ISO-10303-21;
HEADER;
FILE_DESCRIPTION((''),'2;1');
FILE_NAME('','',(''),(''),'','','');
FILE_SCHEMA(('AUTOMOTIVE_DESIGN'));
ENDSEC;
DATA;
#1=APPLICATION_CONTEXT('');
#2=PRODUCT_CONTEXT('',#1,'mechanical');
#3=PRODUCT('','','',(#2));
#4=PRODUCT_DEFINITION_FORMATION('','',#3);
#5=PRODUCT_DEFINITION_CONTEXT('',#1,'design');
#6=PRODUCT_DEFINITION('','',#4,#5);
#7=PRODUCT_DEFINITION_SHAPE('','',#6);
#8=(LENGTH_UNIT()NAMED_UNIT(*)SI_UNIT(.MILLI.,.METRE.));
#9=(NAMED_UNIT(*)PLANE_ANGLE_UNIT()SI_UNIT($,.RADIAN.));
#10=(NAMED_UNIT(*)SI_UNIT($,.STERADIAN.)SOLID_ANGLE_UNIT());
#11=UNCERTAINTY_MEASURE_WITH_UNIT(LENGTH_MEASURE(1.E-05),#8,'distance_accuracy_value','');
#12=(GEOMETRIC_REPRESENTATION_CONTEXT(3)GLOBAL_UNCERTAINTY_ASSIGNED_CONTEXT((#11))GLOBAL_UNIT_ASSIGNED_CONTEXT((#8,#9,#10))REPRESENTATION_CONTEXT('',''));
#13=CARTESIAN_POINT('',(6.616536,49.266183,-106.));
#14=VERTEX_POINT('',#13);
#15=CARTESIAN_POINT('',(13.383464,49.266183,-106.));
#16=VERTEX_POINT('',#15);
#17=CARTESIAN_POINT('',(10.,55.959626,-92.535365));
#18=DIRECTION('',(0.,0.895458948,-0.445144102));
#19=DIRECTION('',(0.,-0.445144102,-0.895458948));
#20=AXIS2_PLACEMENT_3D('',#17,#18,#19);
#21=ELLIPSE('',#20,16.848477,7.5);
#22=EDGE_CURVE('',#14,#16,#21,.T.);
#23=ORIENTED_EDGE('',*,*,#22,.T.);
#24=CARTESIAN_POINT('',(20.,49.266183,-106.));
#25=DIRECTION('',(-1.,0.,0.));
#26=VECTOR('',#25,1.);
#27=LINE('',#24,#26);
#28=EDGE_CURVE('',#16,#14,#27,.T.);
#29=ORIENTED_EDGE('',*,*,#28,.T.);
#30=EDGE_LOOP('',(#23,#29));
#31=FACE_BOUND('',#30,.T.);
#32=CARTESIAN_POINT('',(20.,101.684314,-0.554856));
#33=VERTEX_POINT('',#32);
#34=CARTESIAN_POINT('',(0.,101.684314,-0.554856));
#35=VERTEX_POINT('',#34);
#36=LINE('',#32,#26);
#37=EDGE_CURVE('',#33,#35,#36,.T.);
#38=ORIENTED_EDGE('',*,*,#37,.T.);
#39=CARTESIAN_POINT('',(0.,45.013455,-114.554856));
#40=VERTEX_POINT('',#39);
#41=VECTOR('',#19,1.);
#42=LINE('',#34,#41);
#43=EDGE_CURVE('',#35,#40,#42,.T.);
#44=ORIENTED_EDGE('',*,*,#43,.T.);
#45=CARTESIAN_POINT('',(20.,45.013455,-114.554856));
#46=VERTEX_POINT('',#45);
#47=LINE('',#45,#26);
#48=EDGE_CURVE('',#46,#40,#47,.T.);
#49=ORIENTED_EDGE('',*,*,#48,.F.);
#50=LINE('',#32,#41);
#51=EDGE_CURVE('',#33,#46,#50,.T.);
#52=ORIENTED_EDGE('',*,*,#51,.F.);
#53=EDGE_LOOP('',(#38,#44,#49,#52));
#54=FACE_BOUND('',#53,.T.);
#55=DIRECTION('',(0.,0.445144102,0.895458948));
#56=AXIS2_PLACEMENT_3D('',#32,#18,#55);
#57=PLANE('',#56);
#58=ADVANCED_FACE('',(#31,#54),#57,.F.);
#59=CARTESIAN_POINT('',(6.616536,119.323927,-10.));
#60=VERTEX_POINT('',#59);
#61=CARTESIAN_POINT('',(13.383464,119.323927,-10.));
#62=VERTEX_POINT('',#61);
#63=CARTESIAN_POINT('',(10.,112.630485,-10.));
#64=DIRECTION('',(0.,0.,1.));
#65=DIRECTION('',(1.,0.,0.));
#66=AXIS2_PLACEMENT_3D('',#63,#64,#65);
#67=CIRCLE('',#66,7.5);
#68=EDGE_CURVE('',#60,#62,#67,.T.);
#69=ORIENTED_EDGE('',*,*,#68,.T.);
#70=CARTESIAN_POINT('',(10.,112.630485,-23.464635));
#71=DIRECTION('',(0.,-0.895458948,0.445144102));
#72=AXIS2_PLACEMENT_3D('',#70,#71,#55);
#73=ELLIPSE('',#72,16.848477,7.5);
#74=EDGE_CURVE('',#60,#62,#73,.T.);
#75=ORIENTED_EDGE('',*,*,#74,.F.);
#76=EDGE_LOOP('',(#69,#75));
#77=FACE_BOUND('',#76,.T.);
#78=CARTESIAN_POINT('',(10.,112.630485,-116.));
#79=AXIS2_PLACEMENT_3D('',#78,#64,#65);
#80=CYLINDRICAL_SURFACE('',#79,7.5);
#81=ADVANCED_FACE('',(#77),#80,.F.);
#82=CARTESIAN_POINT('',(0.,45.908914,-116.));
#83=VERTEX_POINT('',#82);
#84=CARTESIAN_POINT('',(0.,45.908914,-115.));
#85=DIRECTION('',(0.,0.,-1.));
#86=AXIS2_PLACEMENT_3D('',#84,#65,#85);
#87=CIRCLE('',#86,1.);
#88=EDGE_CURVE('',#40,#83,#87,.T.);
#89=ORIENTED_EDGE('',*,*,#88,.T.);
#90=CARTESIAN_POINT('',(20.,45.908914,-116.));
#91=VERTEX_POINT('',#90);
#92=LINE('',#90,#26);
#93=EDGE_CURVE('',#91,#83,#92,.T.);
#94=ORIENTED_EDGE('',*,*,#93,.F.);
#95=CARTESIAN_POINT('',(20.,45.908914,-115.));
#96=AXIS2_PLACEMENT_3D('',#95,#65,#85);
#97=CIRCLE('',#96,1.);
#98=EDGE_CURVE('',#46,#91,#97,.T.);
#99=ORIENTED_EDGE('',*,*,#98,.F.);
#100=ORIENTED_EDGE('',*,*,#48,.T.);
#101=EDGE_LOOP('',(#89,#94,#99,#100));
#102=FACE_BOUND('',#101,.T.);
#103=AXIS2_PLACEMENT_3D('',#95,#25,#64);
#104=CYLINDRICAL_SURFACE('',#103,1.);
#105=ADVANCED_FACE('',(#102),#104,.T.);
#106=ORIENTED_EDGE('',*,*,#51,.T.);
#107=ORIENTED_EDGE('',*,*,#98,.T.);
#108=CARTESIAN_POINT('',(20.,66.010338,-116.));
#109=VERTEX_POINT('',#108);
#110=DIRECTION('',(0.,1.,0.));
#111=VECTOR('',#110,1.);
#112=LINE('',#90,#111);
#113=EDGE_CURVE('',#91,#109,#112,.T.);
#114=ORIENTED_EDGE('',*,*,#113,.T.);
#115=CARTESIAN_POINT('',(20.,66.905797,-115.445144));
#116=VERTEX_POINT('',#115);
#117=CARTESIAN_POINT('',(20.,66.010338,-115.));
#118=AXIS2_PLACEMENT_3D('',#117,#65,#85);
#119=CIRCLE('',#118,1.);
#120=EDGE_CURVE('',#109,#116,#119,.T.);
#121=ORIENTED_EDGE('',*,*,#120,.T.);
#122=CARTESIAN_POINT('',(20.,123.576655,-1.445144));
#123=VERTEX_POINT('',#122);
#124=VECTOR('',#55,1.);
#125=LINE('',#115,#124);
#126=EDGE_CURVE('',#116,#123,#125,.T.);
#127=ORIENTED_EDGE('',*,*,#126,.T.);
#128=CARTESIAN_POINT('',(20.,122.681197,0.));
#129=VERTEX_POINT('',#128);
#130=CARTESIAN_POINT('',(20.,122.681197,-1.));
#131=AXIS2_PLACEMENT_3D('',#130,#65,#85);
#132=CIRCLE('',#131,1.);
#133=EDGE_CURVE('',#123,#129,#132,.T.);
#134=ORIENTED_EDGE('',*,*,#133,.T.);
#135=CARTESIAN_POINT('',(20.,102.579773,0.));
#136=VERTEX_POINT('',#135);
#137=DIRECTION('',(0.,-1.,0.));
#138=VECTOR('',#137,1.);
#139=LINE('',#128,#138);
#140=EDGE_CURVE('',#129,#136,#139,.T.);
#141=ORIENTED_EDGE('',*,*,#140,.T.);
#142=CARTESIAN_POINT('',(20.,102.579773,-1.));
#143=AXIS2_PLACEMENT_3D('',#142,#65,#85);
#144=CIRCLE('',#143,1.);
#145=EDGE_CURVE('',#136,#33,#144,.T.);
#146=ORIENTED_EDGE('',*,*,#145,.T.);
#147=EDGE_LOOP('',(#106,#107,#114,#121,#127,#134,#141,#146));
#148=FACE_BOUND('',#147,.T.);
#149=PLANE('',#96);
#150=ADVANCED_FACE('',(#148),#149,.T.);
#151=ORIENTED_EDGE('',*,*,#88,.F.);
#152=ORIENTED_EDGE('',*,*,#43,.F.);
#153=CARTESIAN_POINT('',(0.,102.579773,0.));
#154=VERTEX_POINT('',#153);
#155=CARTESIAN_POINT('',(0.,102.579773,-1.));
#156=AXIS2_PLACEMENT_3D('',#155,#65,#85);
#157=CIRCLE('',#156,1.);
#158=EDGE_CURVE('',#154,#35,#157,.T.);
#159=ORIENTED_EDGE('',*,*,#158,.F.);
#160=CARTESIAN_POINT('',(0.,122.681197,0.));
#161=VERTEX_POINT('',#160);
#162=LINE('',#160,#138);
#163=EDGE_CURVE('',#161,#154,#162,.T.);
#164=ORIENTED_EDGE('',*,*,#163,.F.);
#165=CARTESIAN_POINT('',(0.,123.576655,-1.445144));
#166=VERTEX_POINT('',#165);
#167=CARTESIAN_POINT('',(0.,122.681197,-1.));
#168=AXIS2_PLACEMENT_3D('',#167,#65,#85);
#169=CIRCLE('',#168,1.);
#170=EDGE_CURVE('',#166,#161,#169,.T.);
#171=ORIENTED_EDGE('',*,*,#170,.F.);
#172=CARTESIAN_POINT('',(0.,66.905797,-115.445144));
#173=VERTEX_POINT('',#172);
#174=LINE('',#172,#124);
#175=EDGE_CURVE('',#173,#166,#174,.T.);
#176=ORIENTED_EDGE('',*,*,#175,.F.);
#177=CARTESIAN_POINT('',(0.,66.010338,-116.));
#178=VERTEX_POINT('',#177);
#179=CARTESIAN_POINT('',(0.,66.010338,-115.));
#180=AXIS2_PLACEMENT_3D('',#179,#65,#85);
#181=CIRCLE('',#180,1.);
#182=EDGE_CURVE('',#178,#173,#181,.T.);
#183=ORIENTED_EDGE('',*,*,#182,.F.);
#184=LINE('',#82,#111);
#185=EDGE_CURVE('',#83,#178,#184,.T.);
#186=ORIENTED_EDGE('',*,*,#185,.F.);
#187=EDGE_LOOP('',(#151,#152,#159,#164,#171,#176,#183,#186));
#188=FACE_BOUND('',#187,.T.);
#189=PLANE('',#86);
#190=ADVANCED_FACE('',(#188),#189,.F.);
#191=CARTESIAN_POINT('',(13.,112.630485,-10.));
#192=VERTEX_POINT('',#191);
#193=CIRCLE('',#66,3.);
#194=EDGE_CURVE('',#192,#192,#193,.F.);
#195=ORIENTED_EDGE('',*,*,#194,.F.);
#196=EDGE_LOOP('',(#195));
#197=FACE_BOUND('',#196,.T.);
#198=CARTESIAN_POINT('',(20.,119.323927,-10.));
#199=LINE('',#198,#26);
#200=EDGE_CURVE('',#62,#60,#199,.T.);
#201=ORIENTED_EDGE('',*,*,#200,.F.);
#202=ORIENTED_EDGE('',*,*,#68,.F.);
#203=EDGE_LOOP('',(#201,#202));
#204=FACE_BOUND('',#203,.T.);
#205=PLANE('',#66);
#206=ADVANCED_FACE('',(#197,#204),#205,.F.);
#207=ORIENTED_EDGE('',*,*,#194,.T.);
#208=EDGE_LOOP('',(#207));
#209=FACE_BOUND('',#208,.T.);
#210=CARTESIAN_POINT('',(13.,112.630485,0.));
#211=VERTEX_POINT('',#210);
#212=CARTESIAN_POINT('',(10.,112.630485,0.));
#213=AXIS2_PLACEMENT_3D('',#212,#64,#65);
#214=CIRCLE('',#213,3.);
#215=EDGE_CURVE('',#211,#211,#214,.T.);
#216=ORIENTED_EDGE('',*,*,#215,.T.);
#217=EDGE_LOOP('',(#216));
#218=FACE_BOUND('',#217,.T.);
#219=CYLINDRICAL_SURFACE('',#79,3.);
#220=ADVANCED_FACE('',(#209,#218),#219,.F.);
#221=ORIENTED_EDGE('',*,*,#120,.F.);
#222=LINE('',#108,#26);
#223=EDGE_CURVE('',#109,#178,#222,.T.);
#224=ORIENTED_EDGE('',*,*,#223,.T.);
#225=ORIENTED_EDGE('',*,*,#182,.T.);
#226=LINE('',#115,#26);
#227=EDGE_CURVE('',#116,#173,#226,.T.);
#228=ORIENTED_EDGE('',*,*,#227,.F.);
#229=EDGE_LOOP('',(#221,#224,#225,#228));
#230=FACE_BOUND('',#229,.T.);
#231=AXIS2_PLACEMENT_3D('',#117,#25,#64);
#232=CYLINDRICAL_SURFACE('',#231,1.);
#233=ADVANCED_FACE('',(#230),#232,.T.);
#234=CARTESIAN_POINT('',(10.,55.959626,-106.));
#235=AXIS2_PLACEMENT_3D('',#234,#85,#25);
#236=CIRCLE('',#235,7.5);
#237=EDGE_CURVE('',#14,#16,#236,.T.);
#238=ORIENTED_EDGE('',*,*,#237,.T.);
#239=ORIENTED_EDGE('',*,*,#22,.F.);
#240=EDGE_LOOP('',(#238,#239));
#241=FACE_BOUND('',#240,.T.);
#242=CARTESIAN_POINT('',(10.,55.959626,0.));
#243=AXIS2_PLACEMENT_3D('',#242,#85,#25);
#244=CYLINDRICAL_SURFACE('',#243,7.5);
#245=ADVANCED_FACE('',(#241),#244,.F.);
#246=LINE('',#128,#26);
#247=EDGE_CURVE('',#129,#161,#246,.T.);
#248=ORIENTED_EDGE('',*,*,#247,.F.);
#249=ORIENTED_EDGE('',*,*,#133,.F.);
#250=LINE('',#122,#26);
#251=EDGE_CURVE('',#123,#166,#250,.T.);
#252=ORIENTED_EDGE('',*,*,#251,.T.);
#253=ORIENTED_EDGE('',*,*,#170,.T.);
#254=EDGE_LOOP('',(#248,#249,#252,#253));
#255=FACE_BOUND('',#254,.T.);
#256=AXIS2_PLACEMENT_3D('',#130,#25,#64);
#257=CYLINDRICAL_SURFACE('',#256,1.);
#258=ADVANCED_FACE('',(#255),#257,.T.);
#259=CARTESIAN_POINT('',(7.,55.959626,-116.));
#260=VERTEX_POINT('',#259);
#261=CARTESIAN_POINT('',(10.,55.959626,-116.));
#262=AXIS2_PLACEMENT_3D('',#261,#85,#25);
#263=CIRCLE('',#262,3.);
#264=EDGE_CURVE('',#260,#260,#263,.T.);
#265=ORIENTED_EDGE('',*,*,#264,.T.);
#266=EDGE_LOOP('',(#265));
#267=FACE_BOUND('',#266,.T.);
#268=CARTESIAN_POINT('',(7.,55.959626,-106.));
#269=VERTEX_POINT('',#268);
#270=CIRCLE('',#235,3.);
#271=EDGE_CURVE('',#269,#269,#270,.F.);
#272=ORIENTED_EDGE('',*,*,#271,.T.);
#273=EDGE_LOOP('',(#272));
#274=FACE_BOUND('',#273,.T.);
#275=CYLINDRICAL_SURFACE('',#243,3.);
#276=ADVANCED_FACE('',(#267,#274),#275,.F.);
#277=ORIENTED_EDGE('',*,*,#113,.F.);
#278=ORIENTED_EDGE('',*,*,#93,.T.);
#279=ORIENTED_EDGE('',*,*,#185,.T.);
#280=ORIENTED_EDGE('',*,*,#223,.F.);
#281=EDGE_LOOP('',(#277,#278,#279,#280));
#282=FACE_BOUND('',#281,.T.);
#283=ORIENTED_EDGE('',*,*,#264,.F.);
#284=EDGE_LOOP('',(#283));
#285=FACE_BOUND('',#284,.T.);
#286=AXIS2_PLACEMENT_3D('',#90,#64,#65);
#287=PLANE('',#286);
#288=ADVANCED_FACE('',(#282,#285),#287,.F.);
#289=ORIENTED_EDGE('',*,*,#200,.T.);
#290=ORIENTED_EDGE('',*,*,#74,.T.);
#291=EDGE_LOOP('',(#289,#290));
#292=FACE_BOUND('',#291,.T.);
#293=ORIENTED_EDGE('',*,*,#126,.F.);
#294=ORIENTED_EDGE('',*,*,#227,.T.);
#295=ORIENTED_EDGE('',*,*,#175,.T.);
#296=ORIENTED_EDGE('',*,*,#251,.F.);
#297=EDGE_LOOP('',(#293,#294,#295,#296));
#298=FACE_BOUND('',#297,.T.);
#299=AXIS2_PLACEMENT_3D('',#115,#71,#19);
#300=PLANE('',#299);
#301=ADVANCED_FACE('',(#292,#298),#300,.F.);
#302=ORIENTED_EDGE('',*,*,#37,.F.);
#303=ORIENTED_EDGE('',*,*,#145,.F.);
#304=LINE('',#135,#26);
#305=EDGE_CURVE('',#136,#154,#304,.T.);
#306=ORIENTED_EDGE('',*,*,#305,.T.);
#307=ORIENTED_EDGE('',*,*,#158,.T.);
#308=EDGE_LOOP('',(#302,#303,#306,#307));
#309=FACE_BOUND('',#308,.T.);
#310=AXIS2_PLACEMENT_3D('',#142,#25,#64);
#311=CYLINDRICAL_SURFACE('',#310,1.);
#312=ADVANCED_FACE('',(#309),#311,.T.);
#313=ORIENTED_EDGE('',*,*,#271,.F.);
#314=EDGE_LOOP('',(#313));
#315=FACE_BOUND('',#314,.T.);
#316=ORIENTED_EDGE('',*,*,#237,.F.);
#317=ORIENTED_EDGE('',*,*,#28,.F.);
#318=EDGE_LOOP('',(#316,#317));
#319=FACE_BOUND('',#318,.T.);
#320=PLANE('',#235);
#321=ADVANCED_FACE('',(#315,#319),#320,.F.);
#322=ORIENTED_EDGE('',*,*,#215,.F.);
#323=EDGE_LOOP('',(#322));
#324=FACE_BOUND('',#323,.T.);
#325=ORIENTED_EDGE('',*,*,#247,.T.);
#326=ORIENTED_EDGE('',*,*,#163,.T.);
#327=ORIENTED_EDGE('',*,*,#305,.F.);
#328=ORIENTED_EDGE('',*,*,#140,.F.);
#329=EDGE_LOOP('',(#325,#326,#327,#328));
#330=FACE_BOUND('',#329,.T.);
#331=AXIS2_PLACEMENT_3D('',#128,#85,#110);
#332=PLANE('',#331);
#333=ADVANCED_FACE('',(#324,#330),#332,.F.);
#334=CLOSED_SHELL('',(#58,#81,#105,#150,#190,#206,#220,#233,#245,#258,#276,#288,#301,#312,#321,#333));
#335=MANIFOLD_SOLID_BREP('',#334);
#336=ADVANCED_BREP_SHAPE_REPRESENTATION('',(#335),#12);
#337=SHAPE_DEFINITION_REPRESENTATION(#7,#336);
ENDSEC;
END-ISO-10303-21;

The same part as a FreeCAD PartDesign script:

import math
import FreeCAD as App
import Part
import Sketcher

V = App.Vector
Q = App.Units.Quantity

doc = App.newDocument("Part")
params = doc.addObject("Spreadsheet::Sheet", "Params")
for row, (alias, value) in enumerate([
    ("sketch1_radius", "1 mm"),
    ("pad1_length", "20 mm"),
    ("sketch2_diameter", "6 mm"),
    ("sketch3_diameter", "15 mm"),
    ("sketch4_diameter", "6 mm"),
    ("sketch5_diameter", "15 mm"),
], start=1):
    params.set(f"A{row}", alias)
    params.set(f"B{row}", "=" + value)
    params.setAlias(f"B{row}", alias)

body = doc.addObject("PartDesign::Body", "Body")

# Sketch on YZ plane
sketch1 = body.newObject("Sketcher::SketchObject", "Sketch")
sketch1.AttachmentSupport = (doc.getObject("YZ_Plane"), [""])
sketch1.MapMode = "FlatFace"
sketch1.addGeometry(Part.LineSegment(V(101.684314, -0.554856, 0), V(45.013455, -114.554856, 0)), False)
sketch1.addGeometry(Part.ArcOfCircle(Part.Circle(V(45.908914, -115, 0), V(0, 0, 1), 1), math.radians(153.567441), math.radians(270)), False)
sketch1.addGeometry(Part.LineSegment(V(45.908914, -116, 0), V(66.010338, -116, 0)), False)
sketch1.addGeometry(Part.ArcOfCircle(Part.Circle(V(66.010338, -115, 0), V(0, 0, 1), 1), math.radians(-90), math.radians(-26.432559)), False)
sketch1.addGeometry(Part.LineSegment(V(66.905797, -115.445144, 0), V(123.576655, -1.445144, 0)), False)
sketch1.addGeometry(Part.ArcOfCircle(Part.Circle(V(122.681197, -1, 0), V(0, 0, 1), 1), math.radians(-26.432559), math.radians(90)), False)
sketch1.addGeometry(Part.LineSegment(V(122.681197, 0, 0), V(102.579773, 0, 0)), False)
sketch1.addGeometry(Part.ArcOfCircle(Part.Circle(V(102.579773, -1, 0), V(0, 0, 1), 1), math.radians(90), math.radians(153.567441)), False)
sketch1.addConstraint(Sketcher.Constraint("Tangent", 0, 2, 1, 1))
sketch1.addConstraint(Sketcher.Constraint("Tangent", 1, 2, 2, 1))
sketch1.addConstraint(Sketcher.Constraint("Tangent", 2, 2, 3, 1))
sketch1.addConstraint(Sketcher.Constraint("Tangent", 3, 2, 4, 1))
sketch1.addConstraint(Sketcher.Constraint("Tangent", 4, 2, 5, 1))
sketch1.addConstraint(Sketcher.Constraint("Tangent", 5, 2, 6, 1))
sketch1.addConstraint(Sketcher.Constraint("Tangent", 6, 2, 7, 1))
sketch1.addConstraint(Sketcher.Constraint("Tangent", 7, 2, 0, 1))
sketch1.addConstraint(Sketcher.Constraint("Horizontal", 2))
sketch1.addConstraint(Sketcher.Constraint("Horizontal", 6))
sketch1.addConstraint(Sketcher.Constraint("Equal", 1, 3))
sketch1.addConstraint(Sketcher.Constraint("Equal", 3, 5))
sketch1.addConstraint(Sketcher.Constraint("Equal", 5, 7))
sketch1.addConstraint(Sketcher.Constraint("PointOnObject", 5, 2, -1))
sketch1.addConstraint(Sketcher.Constraint("Parallel", 0, 4))
sketch1.addConstraint(Sketcher.Constraint("Radius", 1, Q("1 mm")))
sketch1.addConstraint(Sketcher.Constraint("DistanceY", 1, 3, -1, 1, Q("115 mm")))
sketch1.addConstraint(Sketcher.Constraint("DistanceX", 3, 2, 5, 2, Q("55.7754 mm")))
sketch1.addConstraint(Sketcher.Constraint("DistanceX", 2, 1, 2, 2, Q("20.101424 mm")))
sketch1.addConstraint(Sketcher.Constraint("DistanceX", -1, 1, 1, 3, Q("45.908914 mm")))
sketch1.setExpression("Constraints[15]", "Params.sketch1_radius")
pad1 = body.newObject("PartDesign::Pad", "Pad")
pad1.Profile = sketch1
pad1.setExpression("Length", "Params.pad1_length")

# Sketch on XY plane
sketch2 = body.newObject("Sketcher::SketchObject", "Sketch001")
sketch2.AttachmentSupport = (doc.getObject("XY_Plane"), [""])
sketch2.MapMode = "FlatFace"
sketch2.addGeometry(Part.Circle(V(10, 112.630485, 0), V(0, 0, 1), 3), False)
sketch2.addConstraint(Sketcher.Constraint("Diameter", 0, Q("6 mm")))
sketch2.addConstraint(Sketcher.Constraint("DistanceX", -1, 1, 0, 3, Q("10 mm")))
sketch2.addConstraint(Sketcher.Constraint("DistanceY", -1, 1, 0, 3, Q("112.630485 mm")))
sketch2.setExpression("Constraints[0]", "Params.sketch2_diameter")
pocket1 = body.newObject("PartDesign::Pocket", "Pocket")
pocket1.Profile = sketch2
pocket1.Type = "ThroughAll"

# Sketch on XY plane
sketch3 = body.newObject("Sketcher::SketchObject", "Sketch002")
sketch3.AttachmentSupport = (doc.getObject("XY_Plane"), [""])
sketch3.MapMode = "FlatFace"
sketch3.AttachmentOffset = App.Placement(V(0, 0, -10), App.Rotation())
sketch3.addGeometry(Part.Circle(V(10, 112.630485, 0), V(0, 0, 1), 7.5), False)
sketch3.addConstraint(Sketcher.Constraint("Diameter", 0, Q("15 mm")))
sketch3.addConstraint(Sketcher.Constraint("DistanceX", -1, 1, 0, 3, Q("10 mm")))
sketch3.addConstraint(Sketcher.Constraint("DistanceY", -1, 1, 0, 3, Q("112.630485 mm")))
sketch3.setExpression("Constraints[0]", "Params.sketch3_diameter")
pocket2 = body.newObject("PartDesign::Pocket", "Pocket001")
pocket2.Profile = sketch3
pocket2.Type = "ThroughAll"

# Sketch on XY plane
sketch4 = body.newObject("Sketcher::SketchObject", "Sketch003")
sketch4.AttachmentSupport = (doc.getObject("XY_Plane"), [""])
sketch4.MapMode = "FlatFace"
sketch4.AttachmentOffset = App.Placement(V(0, 0, -116), App.Rotation())
sketch4.addGeometry(Part.Circle(V(10, 55.959626, 0), V(0, 0, 1), 3), False)
sketch4.addConstraint(Sketcher.Constraint("Diameter", 0, Q("6 mm")))
sketch4.addConstraint(Sketcher.Constraint("DistanceX", -1, 1, 0, 3, Q("10 mm")))
sketch4.addConstraint(Sketcher.Constraint("DistanceY", -1, 1, 0, 3, Q("55.959626 mm")))
sketch4.setExpression("Constraints[0]", "Params.sketch4_diameter")
pocket3 = body.newObject("PartDesign::Pocket", "Pocket002")
pocket3.Profile = sketch4
pocket3.Type = "ThroughAll"
pocket3.Reversed = True

# Sketch on XY plane
sketch5 = body.newObject("Sketcher::SketchObject", "Sketch004")
sketch5.AttachmentSupport = (doc.getObject("XY_Plane"), [""])
sketch5.MapMode = "FlatFace"
sketch5.AttachmentOffset = App.Placement(V(0, 0, -106), App.Rotation())
sketch5.addGeometry(Part.Circle(V(10, 55.959626, 0), V(0, 0, 1), 7.5), False)
sketch5.addConstraint(Sketcher.Constraint("Diameter", 0, Q("15 mm")))
sketch5.addConstraint(Sketcher.Constraint("DistanceX", -1, 1, 0, 3, Q("10 mm")))
sketch5.addConstraint(Sketcher.Constraint("DistanceY", -1, 1, 0, 3, Q("55.959626 mm")))
sketch5.setExpression("Constraints[0]", "Params.sketch5_diameter")
pocket4 = body.newObject("PartDesign::Pocket", "Pocket003")
pocket4.Profile = sketch5
pocket4.Type = "ThroughAll"
pocket4.Reversed = True

doc.recompute()
